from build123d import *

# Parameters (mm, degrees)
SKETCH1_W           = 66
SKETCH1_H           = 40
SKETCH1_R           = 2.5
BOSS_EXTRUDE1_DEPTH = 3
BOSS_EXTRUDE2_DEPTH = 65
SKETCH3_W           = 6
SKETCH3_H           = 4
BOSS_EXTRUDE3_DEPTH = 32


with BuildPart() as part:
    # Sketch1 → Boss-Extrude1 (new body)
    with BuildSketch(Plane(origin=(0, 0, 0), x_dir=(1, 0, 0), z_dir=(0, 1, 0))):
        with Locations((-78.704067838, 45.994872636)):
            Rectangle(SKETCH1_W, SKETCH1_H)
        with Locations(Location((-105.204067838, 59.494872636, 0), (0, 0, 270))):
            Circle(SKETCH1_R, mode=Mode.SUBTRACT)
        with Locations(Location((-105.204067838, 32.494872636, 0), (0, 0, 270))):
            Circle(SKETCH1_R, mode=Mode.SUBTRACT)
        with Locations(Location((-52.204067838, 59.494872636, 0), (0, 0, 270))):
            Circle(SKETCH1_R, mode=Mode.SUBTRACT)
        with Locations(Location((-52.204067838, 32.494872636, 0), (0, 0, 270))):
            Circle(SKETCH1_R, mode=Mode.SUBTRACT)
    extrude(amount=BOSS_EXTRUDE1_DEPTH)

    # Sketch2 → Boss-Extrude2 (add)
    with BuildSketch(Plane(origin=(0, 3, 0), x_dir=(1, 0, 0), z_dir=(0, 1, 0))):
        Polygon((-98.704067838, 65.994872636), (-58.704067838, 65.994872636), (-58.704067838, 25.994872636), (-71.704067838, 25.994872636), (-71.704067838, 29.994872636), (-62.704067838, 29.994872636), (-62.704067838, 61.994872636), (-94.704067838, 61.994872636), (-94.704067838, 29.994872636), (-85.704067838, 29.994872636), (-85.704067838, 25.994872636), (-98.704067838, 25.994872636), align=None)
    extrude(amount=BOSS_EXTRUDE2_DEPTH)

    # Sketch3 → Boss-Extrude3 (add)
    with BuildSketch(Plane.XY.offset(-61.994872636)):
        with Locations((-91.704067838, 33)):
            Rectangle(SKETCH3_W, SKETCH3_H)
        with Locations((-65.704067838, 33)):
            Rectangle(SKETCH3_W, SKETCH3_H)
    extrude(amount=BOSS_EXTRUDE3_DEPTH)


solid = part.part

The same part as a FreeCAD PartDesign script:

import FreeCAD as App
import Part
import Sketcher


def add_polygon(sketch, points):
    """Adds a closed chain of lines whose ends are joined by coincident constraints."""
    first, n = sketch.GeometryCount, len(points)
    for a, b in zip(points, points[1:] + points[:1]):
        sketch.addGeometry(Part.LineSegment(App.Vector(*a, 0), App.Vector(*b, 0)), False)
    for i in range(n):
        sketch.addConstraint(Sketcher.Constraint("Coincident", first + i, 2, first + (i + 1) % n, 1))

doc = App.newDocument("Part")
body = doc.addObject("PartDesign::Body", "Body")

# Sketch on XZ plane
sketch1 = body.newObject("Sketcher::SketchObject", "Sketch")
sketch1.AttachmentSupport = (doc.getObject("XZ_Plane"), [""])
sketch1.MapMode = "FlatFace"
add_polygon(sketch1, [(-111.7, -66), (-111.7, -26), (-45.7, -26), (-45.7, -66)])  # lines 0-3
sketch1.addGeometry(Part.Circle(App.Vector(-105.2, -32.5, 0), App.Vector(0, 0, 1), 2.5), False)  # 4
sketch1.addGeometry(Part.Circle(App.Vector(-52.2, -32.5, 0), App.Vector(0, 0, 1), 2.5), False)  # 5
sketch1.addGeometry(Part.Circle(App.Vector(-105.2, -59.5, 0), App.Vector(0, 0, 1), 2.5), False)  # 6
sketch1.addGeometry(Part.Circle(App.Vector(-52.2, -59.5, 0), App.Vector(0, 0, 1), 2.5), False)  # 7
sketch1.addConstraint(Sketcher.Constraint("Vertical", 0))
sketch1.addConstraint(Sketcher.Constraint("Horizontal", 1))
sketch1.addConstraint(Sketcher.Constraint("Vertical", 2))
sketch1.addConstraint(Sketcher.Constraint("Horizontal", 3))
sketch1.addConstraint(Sketcher.Constraint("Equal", 4, 5))
sketch1.addConstraint(Sketcher.Constraint("Equal", 5, 6))
sketch1.addConstraint(Sketcher.Constraint("Equal", 6, 7))
sketch1.addConstraint(Sketcher.Constraint("Horizontal", 4, 3, 5, 3))
sketch1.addConstraint(Sketcher.Constraint("Horizontal", 6, 3, 7, 3))
sketch1.addConstraint(Sketcher.Constraint("Vertical", 4, 3, 6, 3))
sketch1.addConstraint(Sketcher.Constraint("Vertical", 5, 3, 7, 3))
sketch1.addConstraint(Sketcher.Constraint("Diameter", 4, 5.0))
sketch1.addConstraint(Sketcher.Constraint("DistanceX", 1, 1, 1, 2, 66.0))
sketch1.addConstraint(Sketcher.Constraint("DistanceY", 0, 1, 0, 2, 40.0))
sketch1.addConstraint(Sketcher.Constraint("DistanceX", 4, 3, 5, 3, 53.0))
sketch1.addConstraint(Sketcher.Constraint("DistanceY", 6, 3, 4, 3, 27.0))
sketch1.addConstraint(Sketcher.Constraint("DistanceX", 0, 2, 4, 3, 6.5))
sketch1.addConstraint(Sketcher.Constraint("DistanceY", 4, 3, 0, 2, 6.5))
sketch1.addConstraint(Sketcher.Constraint("DistanceX", 4, 3, -1, 1, 105.204068))
sketch1.addConstraint(Sketcher.Constraint("DistanceY", 4, 3, -1, 1, 32.494873))
pad1 = body.newObject("PartDesign::Pad", "Pad")
pad1.Profile = sketch1
pad1.Length = 3
pad1.Reversed = True

# Sketch on XZ plane
sketch2 = body.newObject("Sketcher::SketchObject", "Sketch001")
sketch2.AttachmentSupport = (doc.getObject("XZ_Plane"), [""])
sketch2.MapMode = "FlatFace"
sketch2.AttachmentOffset = App.Placement(App.Vector(0, 0, -3), App.Rotation())
add_polygon(sketch2, [(-58.7, -66), (-98.7, -66), (-98.7, -26), (-85.7, -26), (-85.7, -30), (-94.7, -30), (-94.7, -62), (-62.7, -62), (-62.7, -30), (-71.7, -30), (-71.7, -26), (-58.7, -26)])  # lines 0-11
sketch2.addConstraint(Sketcher.Constraint("Horizontal", 0))
sketch2.addConstraint(Sketcher.Constraint("Vertical", 1))
sketch2.addConstraint(Sketcher.Constraint("Horizontal", 2))
sketch2.addConstraint(Sketcher.Constraint("Vertical", 3))
sketch2.addConstraint(Sketcher.Constraint("Horizontal", 4))
sketch2.addConstraint(Sketcher.Constraint("Vertical", 5))
sketch2.addConstraint(Sketcher.Constraint("Horizontal", 6))
sketch2.addConstraint(Sketcher.Constraint("Vertical", 7))
sketch2.addConstraint(Sketcher.Constraint("Horizontal", 8))
sketch2.addConstraint(Sketcher.Constraint("Vertical", 9))
sketch2.addConstraint(Sketcher.Constraint("Horizontal", 10))
sketch2.addConstraint(Sketcher.Constraint("Vertical", 11))
sketch2.addConstraint(Sketcher.Constraint("Horizontal", 4, 2, 7, 2))
sketch2.addConstraint(Sketcher.Constraint("Horizontal", 2, 2, 9, 2))
sketch2.addConstraint(Sketcher.Constraint("Equal", 4, 8))
sketch2.addConstraint(Sketcher.Constraint("Equal", 2, 10))
sketch2.addConstraint(Sketcher.Constraint("Equal", 0, 1))
sketch2.addConstraint(Sketcher.Constraint("Equal", 6, 5))
sketch2.addConstraint(Sketcher.Constraint("DistanceX", 0, 2, 0, 1, 40.0))
sketch2.addConstraint(Sketcher.Constraint("DistanceX", 2, 1, 2, 2, 13.0))
sketch2.addConstraint(Sketcher.Constraint("DistanceX", 4, 2, 4, 1, 9.0))
sketch2.addConstraint(Sketcher.Constraint("DistanceY", 3, 2, 3, 1, 4.0))
sketch2.addConstraint(Sketcher.Constraint("DistanceX", 0, 2, -1, 1, 98.704068))
sketch2.addConstraint(Sketcher.Constraint("DistanceY", 0, 2, -1, 1, 65.994873))
pad2 = body.newObject("PartDesign::Pad", "Pad001")
pad2.Profile = sketch2
pad2.Length = 65
pad2.Reversed = True

# Sketch on XY plane
sketch3 = body.newObject("Sketcher::SketchObject", "Sketch002")
sketch3.AttachmentSupport = (doc.getObject("XY_Plane"), [""])
sketch3.MapMode = "FlatFace"
sketch3.AttachmentOffset = App.Placement(App.Vector(0, 0, -61.994873), App.Rotation())
add_polygon(sketch3, [(-94.7, 35), (-94.7, 31), (-88.7, 31), (-88.7, 35)])  # lines 0-3
add_polygon(sketch3, [(-68.7, 35), (-68.7, 31), (-62.7, 31), (-62.7, 35)])  # lines 4-7
sketch3.addConstraint(Sketcher.Constraint("Vertical", 0))
sketch3.addConstraint(Sketcher.Constraint("Horizontal", 1))
sketch3.addConstraint(Sketcher.Constraint("Vertical", 2))
sketch3.addConstraint(Sketcher.Constraint("Horizontal", 3))
sketch3.addConstraint(Sketcher.Constraint("Vertical", 4))
sketch3.addConstraint(Sketcher.Constraint("Horizontal", 5))
sketch3.addConstraint(Sketcher.Constraint("Vertical", 6))
sketch3.addConstraint(Sketcher.Constraint("Horizontal", 7))
sketch3.addConstraint(Sketcher.Constraint("Horizontal", 1, 2, 4, 2))
sketch3.addConstraint(Sketcher.Constraint("Horizontal", 3, 2, 6, 2))
sketch3.addConstraint(Sketcher.Constraint("Equal", 3, 5))
sketch3.addConstraint(Sketcher.Constraint("DistanceX", 1, 1, 1, 2, 6.0))
sketch3.addConstraint(Sketcher.Constraint("DistanceY", 0, 2, 0, 1, 4.0))
sketch3.addConstraint(Sketcher.Constraint("DistanceY", -1, 1, 0, 2, 31.0))
sketch3.addConstraint(Sketcher.Constraint("DistanceX", 1, 2, 4, 2, 20.0))
sketch3.addConstraint(Sketcher.Constraint("DistanceX", 0, 2, -1, 1, 94.704068))
pad3 = body.newObject("PartDesign::Pad", "Pad002")
pad3.Profile = sketch3
pad3.Length = 32

doc.recompute()
